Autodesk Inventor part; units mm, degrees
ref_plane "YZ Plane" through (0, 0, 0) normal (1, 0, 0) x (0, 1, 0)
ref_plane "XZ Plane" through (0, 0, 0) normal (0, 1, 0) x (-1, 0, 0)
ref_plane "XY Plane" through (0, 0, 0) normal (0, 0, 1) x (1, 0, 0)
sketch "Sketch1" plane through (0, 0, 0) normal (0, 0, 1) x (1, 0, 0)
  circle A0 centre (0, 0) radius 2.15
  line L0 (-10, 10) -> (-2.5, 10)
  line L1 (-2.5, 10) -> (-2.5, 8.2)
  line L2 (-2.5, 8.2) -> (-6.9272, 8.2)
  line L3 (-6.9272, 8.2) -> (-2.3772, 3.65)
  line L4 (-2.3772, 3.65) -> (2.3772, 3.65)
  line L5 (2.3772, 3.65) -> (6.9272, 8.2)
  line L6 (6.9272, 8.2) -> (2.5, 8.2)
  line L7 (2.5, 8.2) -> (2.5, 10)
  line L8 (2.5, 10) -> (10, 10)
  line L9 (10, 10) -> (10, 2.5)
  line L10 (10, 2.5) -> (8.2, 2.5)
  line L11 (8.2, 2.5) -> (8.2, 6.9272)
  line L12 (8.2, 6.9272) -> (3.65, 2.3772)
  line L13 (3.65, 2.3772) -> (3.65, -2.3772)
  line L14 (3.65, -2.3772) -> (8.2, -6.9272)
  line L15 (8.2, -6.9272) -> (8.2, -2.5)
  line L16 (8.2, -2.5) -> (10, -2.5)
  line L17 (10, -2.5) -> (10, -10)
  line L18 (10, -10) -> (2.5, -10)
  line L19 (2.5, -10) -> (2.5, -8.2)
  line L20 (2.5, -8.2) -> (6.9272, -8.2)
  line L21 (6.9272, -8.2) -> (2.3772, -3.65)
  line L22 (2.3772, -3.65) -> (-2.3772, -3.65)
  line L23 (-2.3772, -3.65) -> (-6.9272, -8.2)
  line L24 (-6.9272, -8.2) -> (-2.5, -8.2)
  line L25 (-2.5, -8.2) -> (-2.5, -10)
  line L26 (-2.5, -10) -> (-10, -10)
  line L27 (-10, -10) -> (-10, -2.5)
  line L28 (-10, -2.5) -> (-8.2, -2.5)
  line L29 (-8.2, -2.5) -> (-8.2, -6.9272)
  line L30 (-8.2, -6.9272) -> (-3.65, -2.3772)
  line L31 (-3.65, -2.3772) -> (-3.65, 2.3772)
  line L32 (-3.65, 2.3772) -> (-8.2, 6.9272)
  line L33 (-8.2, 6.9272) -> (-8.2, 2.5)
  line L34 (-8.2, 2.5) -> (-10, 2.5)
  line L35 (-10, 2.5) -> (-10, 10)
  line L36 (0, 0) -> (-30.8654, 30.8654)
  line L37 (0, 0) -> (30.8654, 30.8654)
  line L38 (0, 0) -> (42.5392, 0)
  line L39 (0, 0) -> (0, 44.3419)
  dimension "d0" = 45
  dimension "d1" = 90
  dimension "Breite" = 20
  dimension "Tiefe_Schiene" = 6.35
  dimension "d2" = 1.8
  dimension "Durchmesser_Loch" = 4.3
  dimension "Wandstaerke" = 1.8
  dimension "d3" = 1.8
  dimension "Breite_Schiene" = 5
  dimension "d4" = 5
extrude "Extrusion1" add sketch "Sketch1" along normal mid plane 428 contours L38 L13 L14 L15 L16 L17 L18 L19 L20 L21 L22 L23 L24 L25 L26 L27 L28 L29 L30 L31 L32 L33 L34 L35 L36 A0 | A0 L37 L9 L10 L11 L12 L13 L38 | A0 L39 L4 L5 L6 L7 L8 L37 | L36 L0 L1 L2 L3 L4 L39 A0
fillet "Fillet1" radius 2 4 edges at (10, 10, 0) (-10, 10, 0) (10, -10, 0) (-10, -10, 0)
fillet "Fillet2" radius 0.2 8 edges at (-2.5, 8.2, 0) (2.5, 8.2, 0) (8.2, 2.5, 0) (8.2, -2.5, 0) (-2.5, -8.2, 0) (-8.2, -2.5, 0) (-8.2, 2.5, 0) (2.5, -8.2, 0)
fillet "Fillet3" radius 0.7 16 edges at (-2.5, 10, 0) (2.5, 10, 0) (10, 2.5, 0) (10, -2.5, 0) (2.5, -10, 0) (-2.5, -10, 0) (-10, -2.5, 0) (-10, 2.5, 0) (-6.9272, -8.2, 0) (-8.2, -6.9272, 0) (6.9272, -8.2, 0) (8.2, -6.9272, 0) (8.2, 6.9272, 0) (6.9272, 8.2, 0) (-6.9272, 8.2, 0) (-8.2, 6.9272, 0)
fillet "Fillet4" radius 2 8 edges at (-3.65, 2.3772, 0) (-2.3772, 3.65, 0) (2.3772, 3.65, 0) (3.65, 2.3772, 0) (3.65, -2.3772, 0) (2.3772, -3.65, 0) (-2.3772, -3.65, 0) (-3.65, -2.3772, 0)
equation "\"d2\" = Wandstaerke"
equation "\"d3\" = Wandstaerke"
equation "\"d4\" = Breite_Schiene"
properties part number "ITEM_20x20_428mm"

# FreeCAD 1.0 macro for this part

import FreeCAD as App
import Part
import Sketcher

V = App.Vector
Q = App.Units.Quantity


def edges_at(feature, points):
    """Names of the edges that pass closest to the given points."""
    edges = feature.Shape.Edges
    near = lambda p: min(range(len(edges)), key=lambda i: edges[i].distToShape(Part.Vertex(*p))[0])
    return sorted({f"Edge{near(p) + 1}" for p in points})

doc = App.newDocument("Part")
body = doc.addObject("PartDesign::Body", "Body")

# Sketch on XY plane
sketch1 = doc.addObject("Sketcher::SketchObject", "Sketch")
body.addObject(sketch1)
sketch1.AttachmentSupport = (doc.XY_Plane, [""])
sketch1.MapMode = "FlatFace"
sketch1.addGeometry([
    Part.LineSegment(V(3.6, -2.4, 0), V(3.6, 2.4, 0)),  # 0
    Part.LineSegment(V(3.6, 2.4, 0), V(8.2, 6.9, 0)),  # 1
    Part.LineSegment(V(8.2, 6.9, 0), V(8.2, 2.5, 0)),  # 2
    Part.LineSegment(V(8.2, 2.5, 0), V(10, 2.5, 0)),  # 3
    Part.LineSegment(V(10, 2.5, 0), V(10, 10, 0)),  # 4
    Part.LineSegment(V(10, 10, 0), V(2.5, 10, 0)),  # 5
    Part.LineSegment(V(2.5, 10, 0), V(2.5, 8.2, 0)),  # 6
    Part.LineSegment(V(2.5, 8.2, 0), V(6.9, 8.2, 0)),  # 7
    Part.LineSegment(V(6.9, 8.2, 0), V(2.4, 3.6, 0)),  # 8
    Part.LineSegment(V(2.4, 3.6, 0), V(-2.4, 3.6, 0)),  # 9
    Part.LineSegment(V(-2.4, 3.6, 0), V(-6.9, 8.2, 0)),  # 10
    Part.LineSegment(V(-6.9, 8.2, 0), V(-2.5, 8.2, 0)),  # 11
    Part.LineSegment(V(-2.5, 8.2, 0), V(-2.5, 10, 0)),  # 12
    Part.LineSegment(V(-2.5, 10, 0), V(-10, 10, 0)),  # 13
    Part.LineSegment(V(-10, 10, 0), V(-10, 2.5, 0)),  # 14
    Part.LineSegment(V(-10, 2.5, 0), V(-8.2, 2.5, 0)),  # 15
    Part.LineSegment(V(-8.2, 2.5, 0), V(-8.2, 6.9, 0)),  # 16
    Part.LineSegment(V(-8.2, 6.9, 0), V(-3.6, 2.4, 0)),  # 17
    Part.LineSegment(V(-3.6, 2.4, 0), V(-3.6, -2.4, 0)),  # 18
    Part.LineSegment(V(-3.6, -2.4, 0), V(-8.2, -6.9, 0)),  # 19
    Part.LineSegment(V(-8.2, -6.9, 0), V(-8.2, -2.5, 0)),  # 20
    Part.LineSegment(V(-8.2, -2.5, 0), V(-10, -2.5, 0)),  # 21
    Part.LineSegment(V(-10, -2.5, 0), V(-10, -10, 0)),  # 22
    Part.LineSegment(V(-10, -10, 0), V(-2.5, -10, 0)),  # 23
    Part.LineSegment(V(-2.5, -10, 0), V(-2.5, -8.2, 0)),  # 24
    Part.LineSegment(V(-2.5, -8.2, 0), V(-6.9, -8.2, 0)),  # 25
    Part.LineSegment(V(-6.9, -8.2, 0), V(-2.4, -3.6, 0)),  # 26
    Part.LineSegment(V(-2.4, -3.6, 0), V(2.4, -3.6, 0)),  # 27
    Part.LineSegment(V(2.4, -3.6, 0), V(6.9, -8.2, 0)),  # 28
    Part.LineSegment(V(6.9, -8.2, 0), V(2.5, -8.2, 0)),  # 29
    Part.LineSegment(V(2.5, -8.2, 0), V(2.5, -10, 0)),  # 30
    Part.LineSegment(V(2.5, -10, 0), V(10, -10, 0)),  # 31
    Part.LineSegment(V(10, -10, 0), V(10, -2.5, 0)),  # 32
    Part.LineSegment(V(10, -2.5, 0), V(8.2, -2.5, 0)),  # 33
    Part.LineSegment(V(8.2, -2.5, 0), V(8.2, -6.9, 0)),  # 34
    Part.LineSegment(V(8.2, -6.9, 0), V(3.6, -2.4, 0)),  # 35
    Part.Circle(V(0, 0, 0), V(0, 0, 1), 2.1),  # 36
], False)
sketch1.addConstraint([
    Sketcher.Constraint("Coincident", 0, 2, 1, 1),
    Sketcher.Constraint("Coincident", 1, 2, 2, 1),
    Sketcher.Constraint("Coincident", 2, 2, 3, 1),
    Sketcher.Constraint("Coincident", 3, 2, 4, 1),
    Sketcher.Constraint("Coincident", 4, 2, 5, 1),
    Sketcher.Constraint("Coincident", 5, 2, 6, 1),
    Sketcher.Constraint("Coincident", 6, 2, 7, 1),
    Sketcher.Constraint("Coincident", 7, 2, 8, 1),
    Sketcher.Constraint("Coincident", 8, 2, 9, 1),
    Sketcher.Constraint("Coincident", 9, 2, 10, 1),
    Sketcher.Constraint("Coincident", 10, 2, 11, 1),
    Sketcher.Constraint("Coincident", 11, 2, 12, 1),
    Sketcher.Constraint("Coincident", 12, 2, 13, 1),
    Sketcher.Constraint("Coincident", 13, 2, 14, 1),
    Sketcher.Constraint("Coincident", 14, 2, 15, 1),
    Sketcher.Constraint("Coincident", 15, 2, 16, 1),
    Sketcher.Constraint("Coincident", 16, 2, 17, 1),
    Sketcher.Constraint("Coincident", 17, 2, 18, 1),
    Sketcher.Constraint("Coincident", 18, 2, 19, 1),
    Sketcher.Constraint("Coincident", 19, 2, 20, 1),
    Sketcher.Constraint("Coincident", 20, 2, 21, 1),
    Sketcher.Constraint("Coincident", 21, 2, 22, 1),
    Sketcher.Constraint("Coincident", 22, 2, 23, 1),
    Sketcher.Constraint("Coincident", 23, 2, 24, 1),
    Sketcher.Constraint("Coincident", 24, 2, 25, 1),
    Sketcher.Constraint("Coincident", 25, 2, 26, 1),
    Sketcher.Constraint("Coincident", 26, 2, 27, 1),
    Sketcher.Constraint("Coincident", 27, 2, 28, 1),
    Sketcher.Constraint("Coincident", 28, 2, 29, 1),
    Sketcher.Constraint("Coincident", 29, 2, 30, 1),
    Sketcher.Constraint("Coincident", 30, 2, 31, 1),
    Sketcher.Constraint("Coincident", 31, 2, 32, 1),
    Sketcher.Constraint("Coincident", 32, 2, 33, 1),
    Sketcher.Constraint("Coincident", 33, 2, 34, 1),
    Sketcher.Constraint("Coincident", 34, 2, 35, 1),
    Sketcher.Constraint("Coincident", 35, 2, 0, 1),
    Sketcher.Constraint("Vertical", 0),
    Sketcher.Constraint("Vertical", 2),
    Sketcher.Constraint("Horizontal", 3),
    Sketcher.Constraint("Vertical", 4),
    Sketcher.Constraint("Horizontal", 5),
    Sketcher.Constraint("Vertical", 6),
    Sketcher.Constraint("Horizontal", 7),
    Sketcher.Constraint("Horizontal", 9),
    Sketcher.Constraint("Horizontal", 11),
    Sketcher.Constraint("Vertical", 12),
    Sketcher.Constraint("Horizontal", 13),
    Sketcher.Constraint("Vertical", 14),
    Sketcher.Constraint("Horizontal", 15),
    Sketcher.Constraint("Vertical", 16),
    Sketcher.Constraint("Vertical", 18),
    Sketcher.Constraint("Vertical", 20),
    Sketcher.Constraint("Horizontal", 21),
    Sketcher.Constraint("Vertical", 22),
    Sketcher.Constraint("Horizontal", 23),
    Sketcher.Constraint("Vertical", 24),
    Sketcher.Constraint("Horizontal", 25),
    Sketcher.Constraint("Horizontal", 27),
    Sketcher.Constraint("Horizontal", 29),
    Sketcher.Constraint("Vertical", 30),
    Sketcher.Constraint("Horizontal", 31),
    Sketcher.Constraint("Vertical", 32),
    Sketcher.Constraint("Horizontal", 33),
    Sketcher.Constraint("Vertical", 34),
    Sketcher.Constraint("Coincident", 36, 3, -1, 1),
    Sketcher.Constraint("Symmetric", 0, 2, 18, 2, -1, 1),
    Sketcher.Constraint("Symmetric", 1, 2, 19, 2, -1, 1),
    Sketcher.Constraint("Symmetric", 3, 2, 21, 2, -1, 1),
    Sketcher.Constraint("Symmetric", 5, 2, 23, 2, -1, 1),
    Sketcher.Constraint("Symmetric", 7, 2, 25, 2, -1, 1),
    Sketcher.Constraint("Symmetric", 8, 2, 26, 2, -1, 1),
    Sketcher.Constraint("Symmetric", 10, 2, 28, 2, -1, 1),
    Sketcher.Constraint("Symmetric", 12, 2, 30, 2, -1, 1),
    Sketcher.Constraint("Symmetric", 14, 2, 32, 2, -1, 1),
    Sketcher.Constraint("Symmetric", 16, 2, 34, 2, -1, 1),
    Sketcher.Constraint("Symmetric", 7, 2, 10, 2, -2),
    Sketcher.Constraint("Symmetric", 5, 2, 12, 2, -2),
    Sketcher.Constraint("Symmetric", 3, 2, 14, 2, -2),
    Sketcher.Constraint("Symmetric", 1, 2, 16, 2, -2),
    Sketcher.Constraint("Parallel", 1, 8),
    Sketcher.Constraint("Perpendicular", 8, 10),
    Sketcher.Constraint("Parallel", 10, 17),
    Sketcher.Constraint("Perpendicular", 26, 28),
    Sketcher.Constraint("Parallel", 28, 35),
    Sketcher.Constraint("Horizontal", 0, 2, 17, 2),
    Sketcher.Constraint("Equal", 27, 0),
    Sketcher.Constraint("Equal", 29, 2),
    Sketcher.Constraint("Equal", 31, 4),
    Sketcher.Constraint("Equal", 33, 6),
    Sketcher.Constraint("Equal", 1, 8),
    Sketcher.Constraint("Diameter", 36, Q("4.3 mm")),
    Sketcher.Constraint("DistanceX", 3, 1, 3, 2, Q("1.8 mm")),
    Sketcher.Constraint("DistanceX", 11, 2, 6, 2, Q("5 mm")),
    Sketcher.Constraint("DistanceX", 0, 2, 3, 2, Q("6.35 mm")),
    Sketcher.Constraint("DistanceX", 5, 2, 5, 1, Q("7.5 mm")),
    Sketcher.Constraint("DistanceX", 7, 1, 7, 2, Q("4.4272 mm")),
])
pad1 = doc.addObject("PartDesign::Pad", "Pad")
body.addObject(pad1)
pad1.Profile = sketch1
pad1.Length = 428
pad1.Midplane = True
doc.recompute()

fillet = doc.addObject("PartDesign::Fillet", "Fillet")
body.addObject(fillet)
fillet.Base = (pad1, edges_at(pad1, [
    (10, 10, 0),
    (-10, 10, 0),
    (10, -10, 0),
    (-10, -10, 0),
]))
fillet.Radius = 2
doc.recompute()

fillet2 = doc.addObject("PartDesign::Fillet", "Fillet001")
body.addObject(fillet2)
fillet2.Base = (fillet, edges_at(fillet, [
    (-2.5, 8.2, 0),
    (2.5, 8.2, 0),
    (8.2, 2.5, 0),
    (8.2, -2.5, 0),
    (-2.5, -8.2, 0),
    (-8.2, -2.5, 0),
    (-8.2, 2.5, 0),
    (2.5, -8.2, 0),
]))
fillet2.Radius = 0.2
doc.recompute()

fillet3 = doc.addObject("PartDesign::Fillet", "Fillet002")
body.addObject(fillet3)
fillet3.Base = (fillet2, edges_at(fillet2, [
    (-2.5, 10, 0),
    (2.5, 10, 0),
    (10, 2.5, 0),
    (10, -2.5, 0),
    (2.5, -10, 0),
    (-2.5, -10, 0),
    (-10, -2.5, 0),
    (-10, 2.5, 0),
    (-6.927, -8.2, 0),
    (-8.2, -6.927, 0),
    (6.927, -8.2, 0),
    (8.2, -6.927, 0),
    (8.2, 6.927, 0),
    (6.927, 8.2, 0),
    (-6.927, 8.2, 0),
    (-8.2, 6.927, 0),
]))
fillet3.Radius = 0.7
doc.recompute()

fillet4 = doc.addObject("PartDesign::Fillet", "Fillet003")
body.addObject(fillet4)
fillet4.Base = (fillet3, edges_at(fillet3, [
    (-3.65, 2.377, 0),
    (-2.377, 3.65, 0),
    (2.377, 3.65, 0),
    (3.65, 2.377, 0),
    (3.65, -2.377, 0),
    (2.377, -3.65, 0),
    (-2.377, -3.65, 0),
    (-3.65, -2.377, 0),
]))
fillet4.Radius = 2

doc.recompute()
